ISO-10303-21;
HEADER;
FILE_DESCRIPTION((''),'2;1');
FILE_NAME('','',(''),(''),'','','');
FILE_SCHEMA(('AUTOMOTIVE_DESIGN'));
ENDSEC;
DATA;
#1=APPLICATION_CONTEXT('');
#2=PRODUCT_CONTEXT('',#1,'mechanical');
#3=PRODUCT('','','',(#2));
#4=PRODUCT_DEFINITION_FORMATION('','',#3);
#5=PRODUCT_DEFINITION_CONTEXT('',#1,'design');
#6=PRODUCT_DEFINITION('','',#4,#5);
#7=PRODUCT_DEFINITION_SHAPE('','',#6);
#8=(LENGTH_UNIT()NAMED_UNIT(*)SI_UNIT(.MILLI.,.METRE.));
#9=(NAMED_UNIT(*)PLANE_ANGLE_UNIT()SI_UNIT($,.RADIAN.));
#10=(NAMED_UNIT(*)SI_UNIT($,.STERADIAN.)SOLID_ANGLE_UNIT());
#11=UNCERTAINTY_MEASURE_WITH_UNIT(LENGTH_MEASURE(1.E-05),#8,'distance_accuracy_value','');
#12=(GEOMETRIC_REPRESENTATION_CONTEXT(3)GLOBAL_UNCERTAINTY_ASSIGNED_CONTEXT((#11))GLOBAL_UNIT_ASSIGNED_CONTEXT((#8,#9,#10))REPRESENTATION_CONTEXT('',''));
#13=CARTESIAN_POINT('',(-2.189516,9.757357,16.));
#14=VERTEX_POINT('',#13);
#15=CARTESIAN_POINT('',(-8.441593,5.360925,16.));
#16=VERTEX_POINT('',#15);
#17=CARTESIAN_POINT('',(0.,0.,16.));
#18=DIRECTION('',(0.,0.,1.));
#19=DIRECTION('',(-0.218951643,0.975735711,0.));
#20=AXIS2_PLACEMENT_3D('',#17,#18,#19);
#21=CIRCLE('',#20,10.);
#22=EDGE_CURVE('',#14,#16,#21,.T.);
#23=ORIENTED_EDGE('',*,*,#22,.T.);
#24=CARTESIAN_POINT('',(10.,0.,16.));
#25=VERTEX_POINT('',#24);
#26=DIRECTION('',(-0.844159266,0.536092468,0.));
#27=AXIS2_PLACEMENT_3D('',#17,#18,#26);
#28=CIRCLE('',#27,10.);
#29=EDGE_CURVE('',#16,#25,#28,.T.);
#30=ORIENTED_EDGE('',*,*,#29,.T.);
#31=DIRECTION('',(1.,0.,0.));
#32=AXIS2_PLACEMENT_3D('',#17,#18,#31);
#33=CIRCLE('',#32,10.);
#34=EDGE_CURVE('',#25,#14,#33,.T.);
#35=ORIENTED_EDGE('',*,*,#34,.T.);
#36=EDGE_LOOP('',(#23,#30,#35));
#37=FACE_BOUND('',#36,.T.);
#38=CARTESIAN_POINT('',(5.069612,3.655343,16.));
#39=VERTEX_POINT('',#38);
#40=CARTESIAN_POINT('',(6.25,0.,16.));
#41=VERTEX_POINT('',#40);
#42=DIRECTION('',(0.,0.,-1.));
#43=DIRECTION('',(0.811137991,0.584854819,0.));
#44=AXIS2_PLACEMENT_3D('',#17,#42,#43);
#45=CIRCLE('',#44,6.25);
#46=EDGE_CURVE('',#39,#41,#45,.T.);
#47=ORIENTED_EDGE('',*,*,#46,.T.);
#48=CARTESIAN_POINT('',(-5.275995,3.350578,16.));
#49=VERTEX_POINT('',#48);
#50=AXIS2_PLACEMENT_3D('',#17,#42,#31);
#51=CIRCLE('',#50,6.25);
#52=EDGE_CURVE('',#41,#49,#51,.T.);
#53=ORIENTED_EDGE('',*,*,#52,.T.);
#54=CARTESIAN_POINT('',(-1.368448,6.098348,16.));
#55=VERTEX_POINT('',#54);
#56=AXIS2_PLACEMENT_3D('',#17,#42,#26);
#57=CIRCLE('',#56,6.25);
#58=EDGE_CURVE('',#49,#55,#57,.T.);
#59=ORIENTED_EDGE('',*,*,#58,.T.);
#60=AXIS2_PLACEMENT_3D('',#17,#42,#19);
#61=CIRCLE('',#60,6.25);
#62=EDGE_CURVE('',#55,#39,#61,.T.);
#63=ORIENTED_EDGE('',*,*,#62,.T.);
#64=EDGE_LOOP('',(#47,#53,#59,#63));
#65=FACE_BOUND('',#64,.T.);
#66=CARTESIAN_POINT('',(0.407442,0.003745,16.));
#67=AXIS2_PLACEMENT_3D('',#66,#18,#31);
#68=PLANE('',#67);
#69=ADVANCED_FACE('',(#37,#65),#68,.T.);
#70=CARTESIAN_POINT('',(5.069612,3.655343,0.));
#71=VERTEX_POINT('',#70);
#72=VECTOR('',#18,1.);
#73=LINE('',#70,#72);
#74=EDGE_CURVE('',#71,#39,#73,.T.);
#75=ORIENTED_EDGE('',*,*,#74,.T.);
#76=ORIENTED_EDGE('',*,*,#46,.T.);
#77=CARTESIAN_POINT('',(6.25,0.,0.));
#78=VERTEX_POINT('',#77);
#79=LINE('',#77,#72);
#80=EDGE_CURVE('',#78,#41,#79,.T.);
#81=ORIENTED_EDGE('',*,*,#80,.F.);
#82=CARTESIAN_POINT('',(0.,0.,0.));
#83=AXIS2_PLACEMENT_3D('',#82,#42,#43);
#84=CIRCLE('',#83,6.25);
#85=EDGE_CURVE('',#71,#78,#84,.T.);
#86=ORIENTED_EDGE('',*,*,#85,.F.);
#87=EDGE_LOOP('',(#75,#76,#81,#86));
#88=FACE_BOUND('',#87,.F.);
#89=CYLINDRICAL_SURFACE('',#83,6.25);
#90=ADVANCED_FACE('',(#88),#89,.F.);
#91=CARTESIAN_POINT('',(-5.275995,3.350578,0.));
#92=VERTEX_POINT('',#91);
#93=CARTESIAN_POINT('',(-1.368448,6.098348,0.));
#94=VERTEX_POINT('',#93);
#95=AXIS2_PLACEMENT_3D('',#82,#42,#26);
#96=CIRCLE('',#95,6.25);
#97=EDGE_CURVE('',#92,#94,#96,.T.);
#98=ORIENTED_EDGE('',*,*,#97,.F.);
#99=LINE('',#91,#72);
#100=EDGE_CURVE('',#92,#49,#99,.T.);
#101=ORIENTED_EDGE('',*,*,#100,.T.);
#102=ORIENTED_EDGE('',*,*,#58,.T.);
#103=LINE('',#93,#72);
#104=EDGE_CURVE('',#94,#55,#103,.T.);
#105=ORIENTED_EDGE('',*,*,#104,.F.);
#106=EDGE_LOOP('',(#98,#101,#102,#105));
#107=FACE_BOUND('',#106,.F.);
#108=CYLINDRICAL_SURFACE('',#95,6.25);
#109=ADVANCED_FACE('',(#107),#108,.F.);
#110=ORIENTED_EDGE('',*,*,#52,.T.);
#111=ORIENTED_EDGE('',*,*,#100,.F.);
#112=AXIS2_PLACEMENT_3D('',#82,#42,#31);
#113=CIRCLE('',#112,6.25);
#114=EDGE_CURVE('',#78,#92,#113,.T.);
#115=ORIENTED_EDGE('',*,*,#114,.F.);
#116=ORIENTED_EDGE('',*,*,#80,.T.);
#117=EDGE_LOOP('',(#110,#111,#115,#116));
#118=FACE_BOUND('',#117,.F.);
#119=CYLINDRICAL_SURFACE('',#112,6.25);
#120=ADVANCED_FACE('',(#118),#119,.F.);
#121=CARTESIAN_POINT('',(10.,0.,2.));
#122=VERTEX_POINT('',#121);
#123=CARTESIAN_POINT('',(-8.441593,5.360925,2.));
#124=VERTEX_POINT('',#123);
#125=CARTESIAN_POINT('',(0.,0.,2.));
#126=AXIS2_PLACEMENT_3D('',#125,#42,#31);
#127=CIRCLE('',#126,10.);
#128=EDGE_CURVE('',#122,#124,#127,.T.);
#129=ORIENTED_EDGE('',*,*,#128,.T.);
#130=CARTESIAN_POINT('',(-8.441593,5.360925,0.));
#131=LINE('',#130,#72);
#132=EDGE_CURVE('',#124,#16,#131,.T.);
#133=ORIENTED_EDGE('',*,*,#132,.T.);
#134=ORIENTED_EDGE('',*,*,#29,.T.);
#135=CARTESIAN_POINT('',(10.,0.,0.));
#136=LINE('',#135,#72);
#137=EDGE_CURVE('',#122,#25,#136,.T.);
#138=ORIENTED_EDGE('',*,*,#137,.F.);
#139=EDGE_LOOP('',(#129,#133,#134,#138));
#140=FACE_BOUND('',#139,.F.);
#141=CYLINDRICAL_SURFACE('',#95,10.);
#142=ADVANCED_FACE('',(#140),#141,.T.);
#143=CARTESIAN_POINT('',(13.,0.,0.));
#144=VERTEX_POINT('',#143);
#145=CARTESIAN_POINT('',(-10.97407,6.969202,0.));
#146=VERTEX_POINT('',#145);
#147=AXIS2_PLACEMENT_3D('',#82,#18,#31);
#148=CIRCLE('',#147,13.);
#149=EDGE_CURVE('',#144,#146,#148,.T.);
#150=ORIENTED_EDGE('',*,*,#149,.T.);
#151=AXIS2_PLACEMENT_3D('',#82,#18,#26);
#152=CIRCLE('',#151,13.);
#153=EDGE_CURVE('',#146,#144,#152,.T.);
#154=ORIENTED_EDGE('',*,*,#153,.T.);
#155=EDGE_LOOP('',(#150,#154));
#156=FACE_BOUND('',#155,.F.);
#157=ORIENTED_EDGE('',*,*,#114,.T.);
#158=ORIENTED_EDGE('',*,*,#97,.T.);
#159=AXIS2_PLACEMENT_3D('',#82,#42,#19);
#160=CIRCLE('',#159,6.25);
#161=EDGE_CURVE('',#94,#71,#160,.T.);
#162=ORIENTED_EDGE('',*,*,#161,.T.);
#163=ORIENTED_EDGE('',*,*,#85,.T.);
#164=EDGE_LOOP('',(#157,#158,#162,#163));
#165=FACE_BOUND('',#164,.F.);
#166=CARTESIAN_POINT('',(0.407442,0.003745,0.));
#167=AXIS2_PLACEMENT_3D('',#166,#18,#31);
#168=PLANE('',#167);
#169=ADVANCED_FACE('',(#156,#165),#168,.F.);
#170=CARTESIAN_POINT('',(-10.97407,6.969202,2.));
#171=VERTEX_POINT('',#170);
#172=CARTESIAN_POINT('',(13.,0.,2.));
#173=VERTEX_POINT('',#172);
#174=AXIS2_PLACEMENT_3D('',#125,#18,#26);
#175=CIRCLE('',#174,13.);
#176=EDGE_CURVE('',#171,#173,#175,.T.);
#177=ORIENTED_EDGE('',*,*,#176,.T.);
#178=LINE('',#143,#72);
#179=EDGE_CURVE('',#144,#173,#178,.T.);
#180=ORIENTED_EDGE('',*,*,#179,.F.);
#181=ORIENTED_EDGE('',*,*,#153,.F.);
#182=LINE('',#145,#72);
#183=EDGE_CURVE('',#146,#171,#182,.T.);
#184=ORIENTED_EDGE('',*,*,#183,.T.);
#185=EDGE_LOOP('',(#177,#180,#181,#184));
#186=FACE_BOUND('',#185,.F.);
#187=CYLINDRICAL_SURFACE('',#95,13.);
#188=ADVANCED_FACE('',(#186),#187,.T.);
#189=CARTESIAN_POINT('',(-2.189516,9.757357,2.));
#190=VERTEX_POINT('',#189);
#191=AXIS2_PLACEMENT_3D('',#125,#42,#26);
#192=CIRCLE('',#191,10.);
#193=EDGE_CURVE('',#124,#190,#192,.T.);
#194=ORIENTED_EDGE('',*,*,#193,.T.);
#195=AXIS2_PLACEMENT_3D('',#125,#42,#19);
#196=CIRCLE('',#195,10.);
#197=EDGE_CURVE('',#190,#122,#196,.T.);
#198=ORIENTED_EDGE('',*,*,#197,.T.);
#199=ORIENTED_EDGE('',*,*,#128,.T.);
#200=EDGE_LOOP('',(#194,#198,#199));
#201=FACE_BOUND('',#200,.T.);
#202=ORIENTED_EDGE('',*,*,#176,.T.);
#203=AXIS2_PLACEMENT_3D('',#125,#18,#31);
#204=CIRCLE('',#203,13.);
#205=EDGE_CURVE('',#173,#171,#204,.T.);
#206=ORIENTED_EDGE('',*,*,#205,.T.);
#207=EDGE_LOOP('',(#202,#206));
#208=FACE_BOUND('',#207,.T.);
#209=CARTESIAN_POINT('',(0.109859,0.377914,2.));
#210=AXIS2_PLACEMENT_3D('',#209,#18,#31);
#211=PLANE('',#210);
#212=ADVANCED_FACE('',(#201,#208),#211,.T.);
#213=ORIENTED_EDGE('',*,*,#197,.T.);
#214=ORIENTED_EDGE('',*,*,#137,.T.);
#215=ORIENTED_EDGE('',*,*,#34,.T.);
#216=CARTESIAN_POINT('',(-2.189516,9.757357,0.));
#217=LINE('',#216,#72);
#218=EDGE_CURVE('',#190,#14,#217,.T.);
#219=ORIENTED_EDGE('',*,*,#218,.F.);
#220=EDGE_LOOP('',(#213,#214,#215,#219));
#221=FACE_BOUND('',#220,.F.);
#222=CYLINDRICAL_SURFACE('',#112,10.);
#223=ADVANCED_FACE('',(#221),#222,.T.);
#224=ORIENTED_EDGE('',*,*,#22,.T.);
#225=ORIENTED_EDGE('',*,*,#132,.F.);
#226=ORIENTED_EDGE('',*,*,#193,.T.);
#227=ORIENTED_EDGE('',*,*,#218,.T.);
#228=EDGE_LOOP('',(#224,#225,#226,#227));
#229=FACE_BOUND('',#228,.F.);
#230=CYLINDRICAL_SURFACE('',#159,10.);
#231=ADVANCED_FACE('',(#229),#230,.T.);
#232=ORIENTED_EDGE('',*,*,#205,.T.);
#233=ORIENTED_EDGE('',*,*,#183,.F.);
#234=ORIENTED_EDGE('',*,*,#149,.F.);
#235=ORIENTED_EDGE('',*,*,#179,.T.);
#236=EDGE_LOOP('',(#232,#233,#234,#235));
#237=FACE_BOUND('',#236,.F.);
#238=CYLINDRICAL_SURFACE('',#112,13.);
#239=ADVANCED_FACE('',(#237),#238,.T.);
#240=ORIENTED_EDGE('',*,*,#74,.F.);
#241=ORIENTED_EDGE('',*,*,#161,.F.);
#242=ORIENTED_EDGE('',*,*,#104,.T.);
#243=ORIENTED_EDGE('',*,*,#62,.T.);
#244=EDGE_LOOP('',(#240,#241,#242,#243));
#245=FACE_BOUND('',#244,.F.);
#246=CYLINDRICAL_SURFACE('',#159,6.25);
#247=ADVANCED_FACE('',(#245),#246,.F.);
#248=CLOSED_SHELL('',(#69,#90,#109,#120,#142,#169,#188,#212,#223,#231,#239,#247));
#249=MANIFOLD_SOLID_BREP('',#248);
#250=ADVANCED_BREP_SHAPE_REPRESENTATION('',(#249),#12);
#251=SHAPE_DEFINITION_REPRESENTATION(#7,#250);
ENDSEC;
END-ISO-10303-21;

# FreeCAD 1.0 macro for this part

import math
import FreeCAD as App
import Part
import Sketcher
from FreeCAD import Vector

doc = App.newDocument("Part")
params = doc.addObject("Spreadsheet::Sheet", "Params")
for row, (alias, value) in enumerate([
    ("sketch1_radius", "13 mm"),
    ("sketch1_radius2", "10 mm"),
    ("pad1_length", "2 mm"),
    ("sketch2_radius", "10 mm"),
    ("sketch2_radius2", "6.25 mm"),
    ("pad2_length", "16 mm"),
], start=1):
    params.set(f"A{row}", alias)
    params.set(f"B{row}", "=" + value)
    params.setAlias(f"B{row}", alias)

body = doc.addObject("PartDesign::Body", "Body")

sketch1 = body.newObject("Sketcher::SketchObject", "Sketch")
sketch1.AttachmentSupport = (doc.getObject("XY_Plane"), [""])
sketch1.MapMode = "FlatFace"
sketch1.addGeometry([
    Part.ArcOfCircle(Part.Circle(Vector(0, 0, 0), Vector(0, 0, 1), 13), math.radians(0), math.radians(148)),
    Part.ArcOfCircle(Part.Circle(Vector(0, 0, 0), Vector(0, 0, 1), 13), math.radians(148), math.radians(360)),
    Part.ArcOfCircle(Part.Circle(Vector(0, 0, 0), Vector(0, 0, 1), 10), math.radians(0), math.radians(103)),
    Part.ArcOfCircle(Part.Circle(Vector(0, 0, 0), Vector(0, 0, 1), 10), math.radians(148), math.radians(360)),
    Part.ArcOfCircle(Part.Circle(Vector(0, 0, 0), Vector(0, 0, 1), 10), math.radians(103), math.radians(148)),
], False)
sketch1.addConstraint([
    Sketcher.Constraint("Tangent", 0, 1, 1, 2),
    Sketcher.Constraint("Coincident", 1, 1, 0, 2),
    Sketcher.Constraint("Tangent", 2, 1, 3, 2),
    Sketcher.Constraint("Tangent", 3, 1, 4, 2),
    Sketcher.Constraint("Tangent", 4, 1, 2, 2),
    Sketcher.Constraint("Coincident", 0, 3, -1, 1),
    Sketcher.Constraint("Coincident", 2, 3, -1, 1),
    Sketcher.Constraint("PointOnObject", 0, 1, -1),
    Sketcher.Constraint("PointOnObject", 2, 1, -1),
    Sketcher.Constraint("Radius", 0, 13.0),
    Sketcher.Constraint("Radius", 2, 10.0),
    Sketcher.Constraint("DistanceX", 1, 1, -1, 1, 10.97407),
    Sketcher.Constraint("DistanceX", 3, 1, -1, 1, 8.441593),
    Sketcher.Constraint("DistanceX", 4, 1, -1, 1, 2.189516),
])
sketch1.setExpression("Constraints[9]", "Params.sketch1_radius")
sketch1.setExpression("Constraints[10]", "Params.sketch1_radius2")
pad1 = body.newObject("PartDesign::Pad", "Pad")
pad1.Profile = sketch1
pad1.setExpression("Length", "Params.pad1_length")

sketch2 = body.newObject("Sketcher::SketchObject", "Sketch001")
sketch2.AttachmentSupport = (doc.getObject("XY_Plane"), [""])
sketch2.MapMode = "FlatFace"
sketch2.addGeometry([
    Part.ArcOfCircle(Part.Circle(Vector(0, 0, 0), Vector(0, 0, 1), 10), math.radians(148), math.radians(360)),
    Part.ArcOfCircle(Part.Circle(Vector(0, 0, 0), Vector(0, 0, 1), 10), math.radians(0), math.radians(103)),
    Part.ArcOfCircle(Part.Circle(Vector(0, 0, 0), Vector(0, 0, 1), 10), math.radians(103), math.radians(148)),
    Part.ArcOfCircle(Part.Circle(Vector(0, 0, 0), Vector(0, 0, 1), 6.2), math.radians(36), math.radians(103)),
    Part.ArcOfCircle(Part.Circle(Vector(0, 0, 0), Vector(0, 0, 1), 6.2), math.radians(0), math.radians(36)),
    Part.ArcOfCircle(Part.Circle(Vector(0, 0, 0), Vector(0, 0, 1), 6.2), math.radians(148), math.radians(360)),
    Part.ArcOfCircle(Part.Circle(Vector(0, 0, 0), Vector(0, 0, 1), 6.2), math.radians(103), math.radians(148)),
], False)
sketch2.addConstraint([
    Sketcher.Constraint("Tangent", 0, 2, 1, 1),
    Sketcher.Constraint("Tangent", 1, 2, 2, 1),
    Sketcher.Constraint("Tangent", 2, 2, 0, 1),
    Sketcher.Constraint("Tangent", 3, 1, 4, 2),
    Sketcher.Constraint("Tangent", 4, 1, 5, 2),
    Sketcher.Constraint("Tangent", 5, 1, 6, 2),
    Sketcher.Constraint("Tangent", 6, 1, 3, 2),
    Sketcher.Constraint("Coincident", 0, 3, -1, 1),
    Sketcher.Constraint("Coincident", 3, 3, -1, 1),
    Sketcher.Constraint("Equal", 3, 4),
    Sketcher.Constraint("PointOnObject", 0, 2, -1),
    Sketcher.Constraint("PointOnObject", 4, 1, -1),
    Sketcher.Constraint("Radius", 0, 10.0),
    Sketcher.Constraint("Radius", 3, 6.25),
    Sketcher.Constraint("DistanceY", -1, 1, 6, 1, 6.098348),
    Sketcher.Constraint("DistanceX", 1, 2, 6, 1, 0.821069),
    Sketcher.Constraint("DistanceY", 5, 1, 6, 1, 2.74777),
    Sketcher.Constraint("DistanceX", 2, 2, -1, 1, 8.441593),
    Sketcher.Constraint("DistanceX", -1, 1, 3, 1, 5.069612),
])
sketch2.setExpression("Constraints[12]", "Params.sketch2_radius")
sketch2.setExpression("Constraints[13]", "Params.sketch2_radius2")
pad2 = body.newObject("PartDesign::Pad", "Pad001")
pad2.Profile = sketch2
pad2.setExpression("Length", "Params.pad2_length")

doc.recompute()
